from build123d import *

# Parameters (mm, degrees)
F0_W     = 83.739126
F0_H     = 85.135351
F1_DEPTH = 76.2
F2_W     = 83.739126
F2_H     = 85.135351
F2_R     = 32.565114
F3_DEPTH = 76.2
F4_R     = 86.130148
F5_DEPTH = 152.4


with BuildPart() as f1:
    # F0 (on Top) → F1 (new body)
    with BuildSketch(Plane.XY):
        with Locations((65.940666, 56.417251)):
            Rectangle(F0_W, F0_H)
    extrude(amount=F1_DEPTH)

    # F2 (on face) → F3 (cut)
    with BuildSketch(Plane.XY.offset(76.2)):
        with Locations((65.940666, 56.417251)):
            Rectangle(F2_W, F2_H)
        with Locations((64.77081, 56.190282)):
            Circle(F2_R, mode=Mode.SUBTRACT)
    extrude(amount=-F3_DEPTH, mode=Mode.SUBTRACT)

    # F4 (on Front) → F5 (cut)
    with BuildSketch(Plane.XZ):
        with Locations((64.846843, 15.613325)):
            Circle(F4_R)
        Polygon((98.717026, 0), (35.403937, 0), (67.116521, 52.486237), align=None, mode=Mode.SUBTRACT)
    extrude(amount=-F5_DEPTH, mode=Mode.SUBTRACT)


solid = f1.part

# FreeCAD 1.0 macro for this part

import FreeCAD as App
import Part
import Sketcher

V = App.Vector
Q = App.Units.Quantity


def add_polygon(sketch, points):
    """Adds a closed chain of lines whose ends are joined by coincident constraints."""
    first, n = sketch.GeometryCount, len(points)
    for a, b in zip(points, points[1:] + points[:1]):
        sketch.addGeometry(Part.LineSegment(App.Vector(*a, 0), App.Vector(*b, 0)), False)
    for i in range(n):
        sketch.addConstraint(Sketcher.Constraint("Coincident", first + i, 2, first + (i + 1) % n, 1))

doc = App.newDocument("Part")
body = doc.addObject("PartDesign::Body", "Body")

# Sketch on XY plane
sketch1 = body.newObject("Sketcher::SketchObject", "Sketch")
sketch1.AttachmentSupport = (doc.getObject("XY_Plane"), [""])
sketch1.MapMode = "FlatFace"
add_polygon(sketch1, [(24, 99), (24, 14), (108, 14), (108, 99)])  # lines 0-3
sketch1.addConstraint(Sketcher.Constraint("Vertical", 0))
sketch1.addConstraint(Sketcher.Constraint("Horizontal", 1))
sketch1.addConstraint(Sketcher.Constraint("Vertical", 2))
sketch1.addConstraint(Sketcher.Constraint("Horizontal", 3))
sketch1.addConstraint(Sketcher.Constraint("DistanceY", 0, 2, 0, 1, Q("85.135351 mm")))
sketch1.addConstraint(Sketcher.Constraint("DistanceX", 1, 1, 1, 2, Q("83.739126 mm")))
sketch1.addConstraint(Sketcher.Constraint("DistanceX", -1, 1, 1, 2, Q("107.810229 mm")))
sketch1.addConstraint(Sketcher.Constraint("DistanceY", -1, 1, 0, 2, Q("13.849576 mm")))
pad1 = body.newObject("PartDesign::Pad", "Pad")
pad1.Profile = sketch1
pad1.Length = Q("3 in")

# Sketch on XY plane
sketch2 = body.newObject("Sketcher::SketchObject", "Sketch001")
sketch2.AttachmentSupport = (doc.getObject("XY_Plane"), [""])
sketch2.MapMode = "FlatFace"
sketch2.AttachmentOffset = App.Placement(V(0, 0, 3 * 25.4), App.Rotation())
add_polygon(sketch2, [(24, 99), (24, 14), (108, 14), (108, 99)])  # lines 0-3
sketch2.addGeometry(Part.Circle(V(65, 56, 0), V(0, 0, 1), 33), False)  # 4
sketch2.addConstraint(Sketcher.Constraint("Vertical", 0))
sketch2.addConstraint(Sketcher.Constraint("Horizontal", 1))
sketch2.addConstraint(Sketcher.Constraint("Vertical", 2))
sketch2.addConstraint(Sketcher.Constraint("Horizontal", 3))
sketch2.addConstraint(Sketcher.Constraint("Diameter", 4, Q("65.130228 mm")))
sketch2.addConstraint(Sketcher.Constraint("DistanceY", 0, 2, 0, 1, Q("85.135351 mm")))
sketch2.addConstraint(Sketcher.Constraint("DistanceX", 1, 1, 1, 2, Q("83.739126 mm")))
sketch2.addConstraint(Sketcher.Constraint("DistanceX", -1, 1, 4, 3, Q("64.77081 mm")))
sketch2.addConstraint(Sketcher.Constraint("DistanceX", -1, 1, 1, 2, Q("107.810229 mm")))
sketch2.addConstraint(Sketcher.Constraint("DistanceY", -1, 1, 4, 3, Q("56.190282 mm")))
sketch2.addConstraint(Sketcher.Constraint("DistanceY", -1, 1, 0, 2, Q("13.849576 mm")))
pocket1 = body.newObject("PartDesign::Pocket", "Pocket")
pocket1.Profile = sketch2
pocket1.Length = Q("3 in")

# Sketch on XZ plane
sketch3 = body.newObject("Sketcher::SketchObject", "Sketch002")
sketch3.AttachmentSupport = (doc.getObject("XZ_Plane"), [""])
sketch3.MapMode = "FlatFace"
sketch3.addGeometry(Part.Circle(V(65, 16, 0), V(0, 0, 1), 86), False)  # 0
add_polygon(sketch3, [(67, 52), (99, 0), (35, 0)])  # lines 1-3
sketch3.addConstraint(Sketcher.Constraint("Horizontal", 2))
sketch3.addConstraint(Sketcher.Constraint("PointOnObject", 1, 2, -1))
sketch3.addConstraint(Sketcher.Constraint("Diameter", 0, Q("172.260296 mm")))
sketch3.addConstraint(Sketcher.Constraint("DistanceX", 2, 2, 2, 1, Q("63.313089 mm")))
sketch3.addConstraint(Sketcher.Constraint("Distance", 3, Q("61.322859 mm")))
sketch3.addConstraint(Sketcher.Constraint("DistanceX", -1, 1, 3, 2, Q("67.116521 mm")))
sketch3.addConstraint(Sketcher.Constraint("Distance", 1, Q("61.264974 mm")))
sketch3.addConstraint(Sketcher.Constraint("DistanceX", -1, 1, 0, 3, Q("64.846843 mm")))
sketch3.addConstraint(Sketcher.Constraint("DistanceY", -1, 1, 0, 3, Q("15.613325 mm")))
pocket2 = body.newObject("PartDesign::Pocket", "Pocket001")
pocket2.Profile = sketch3
pocket2.Length = Q("6 in")

doc.recompute()
